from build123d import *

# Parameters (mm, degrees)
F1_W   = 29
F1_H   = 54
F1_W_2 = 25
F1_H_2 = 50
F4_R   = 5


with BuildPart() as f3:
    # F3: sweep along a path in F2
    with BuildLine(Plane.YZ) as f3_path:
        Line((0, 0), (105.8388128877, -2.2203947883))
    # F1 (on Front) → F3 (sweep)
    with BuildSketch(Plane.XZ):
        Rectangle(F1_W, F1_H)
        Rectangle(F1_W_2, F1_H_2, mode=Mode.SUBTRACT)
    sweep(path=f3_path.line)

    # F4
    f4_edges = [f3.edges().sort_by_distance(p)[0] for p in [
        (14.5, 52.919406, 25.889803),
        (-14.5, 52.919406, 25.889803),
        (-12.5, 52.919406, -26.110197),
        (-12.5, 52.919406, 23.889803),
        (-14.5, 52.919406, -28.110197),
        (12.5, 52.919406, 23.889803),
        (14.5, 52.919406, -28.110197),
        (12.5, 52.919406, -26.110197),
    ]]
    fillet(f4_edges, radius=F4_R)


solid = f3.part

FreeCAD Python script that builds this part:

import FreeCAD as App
import Part
import Sketcher
from FreeCAD import Vector
Q = App.Units.Quantity


def edges_at(feature, points):
    """Names of the edges that pass closest to the given points."""
    edges = feature.Shape.Edges
    near = lambda p: min(range(len(edges)), key=lambda i: edges[i].distToShape(Part.Vertex(*p))[0])
    return sorted({f"Edge{near(p) + 1}" for p in points})


def add_polygon(sketch, points):
    """Adds a closed chain of lines whose ends are joined by coincident constraints."""
    first, n = sketch.GeometryCount, len(points)
    for a, b in zip(points, points[1:] + points[:1]):
        sketch.addGeometry(Part.LineSegment(App.Vector(*a, 0), App.Vector(*b, 0)), False)
    for i in range(n):
        sketch.addConstraint(Sketcher.Constraint("Coincident", first + i, 2, first + (i + 1) % n, 1))

doc = App.newDocument("Part")
params = doc.addObject("Spreadsheet::Sheet", "Params")
for row, (alias, value) in enumerate([
    ("sketch1_width", "29 mm"),
    ("sketch1_width2", "25 mm"),
    ("sketch1_height", "54 mm"),
    ("sketch1_height2", "50 mm"),
    ("fillet_radius", "5 mm"),
], start=1):
    params.set(f"A{row}", alias)
    params.set(f"B{row}", "=" + value)
    params.setAlias(f"B{row}", alias)

body = doc.addObject("PartDesign::Body", "Body")

# Sketch on XZ plane
sketch1 = doc.addObject("Sketcher::SketchObject", "Sketch")
body.addObject(sketch1)
sketch1.AttachmentSupport = (doc.XZ_Plane, [""])
sketch1.MapMode = "FlatFace"
add_polygon(sketch1, [(-14, 27), (-14, -27), (14, -27), (14, 27)])  # lines 0-3
add_polygon(sketch1, [(12, -25), (-12, -25), (-12, 25), (12, 25)])  # lines 4-7
sketch1.addConstraint(Sketcher.Constraint("Vertical", 0))
sketch1.addConstraint(Sketcher.Constraint("Horizontal", 1))
sketch1.addConstraint(Sketcher.Constraint("Vertical", 2))
sketch1.addConstraint(Sketcher.Constraint("Horizontal", 3))
sketch1.addConstraint(Sketcher.Constraint("Horizontal", 4))
sketch1.addConstraint(Sketcher.Constraint("Vertical", 5))
sketch1.addConstraint(Sketcher.Constraint("Horizontal", 6))
sketch1.addConstraint(Sketcher.Constraint("Vertical", 7))
sketch1.addConstraint(Sketcher.Constraint("Symmetric", 0, 2, 2, 2, -1, 1))
sketch1.addConstraint(Sketcher.Constraint("Symmetric", 4, 2, 6, 2, -1, 1))
sketch1.addConstraint(Sketcher.Constraint("DistanceX", 1, 1, 1, 2, Q("29 mm")))
sketch1.addConstraint(Sketcher.Constraint("DistanceX", 4, 2, 4, 1, Q("25 mm")))
sketch1.addConstraint(Sketcher.Constraint("DistanceY", 0, 2, 0, 1, Q("54 mm")))
sketch1.addConstraint(Sketcher.Constraint("DistanceY", 5, 1, 5, 2, Q("50 mm")))
sketch1.setExpression("Constraints[18]", "Params.sketch1_width")
sketch1.setExpression("Constraints[19]", "Params.sketch1_width2")
sketch1.setExpression("Constraints[20]", "Params.sketch1_height")
sketch1.setExpression("Constraints[21]", "Params.sketch1_height2")

# Sketch on an angled plane
sketch2 = doc.addObject("Sketcher::SketchObject", "Sketch001")
body.addObject(sketch2)
sketch2.Placement = App.Placement(Vector(0, 0, 0), App.Rotation(Vector(0, -0.999780013, 0.020974407), Vector(1, 0, 0), Vector(0, 0.020974407, 0.999780013), "ZXY"))
sketch2.addGeometry(Part.LineSegment(Vector(0, 0, 0), Vector(-106, 0, 0)), False)
sketch2.addConstraint(Sketcher.Constraint("Horizontal", 0))
sketch2.addConstraint(Sketcher.Constraint("Coincident", 0, 1, -1, 1))
sketch2.addConstraint(Sketcher.Constraint("DistanceX", 0, 2, 0, 1, Q("105.862101 mm")))
doc.recompute()

additivepipe = doc.addObject("PartDesign::AdditivePipe", "AdditivePipe")
body.addObject(additivepipe)
additivepipe.Profile = sketch1
additivepipe.Spine = (sketch2, ["Edge1"])
doc.recompute()

fillet = doc.addObject("PartDesign::Fillet", "Fillet")
body.addObject(fillet)
fillet.Base = (additivepipe, edges_at(additivepipe, [
    (14.5, 52.919, 25.89),
    (-14.5, 52.919, 25.89),
    (-12.5, 52.919, -26.11),
    (-12.5, 52.919, 23.89),
    (-14.5, 52.919, -28.11),
    (12.5, 52.919, 23.89),
    (14.5, 52.919, -28.11),
    (12.5, 52.919, -26.11),
]))
fillet.setExpression("Radius", "Params.fillet_radius")

doc.recompute()
